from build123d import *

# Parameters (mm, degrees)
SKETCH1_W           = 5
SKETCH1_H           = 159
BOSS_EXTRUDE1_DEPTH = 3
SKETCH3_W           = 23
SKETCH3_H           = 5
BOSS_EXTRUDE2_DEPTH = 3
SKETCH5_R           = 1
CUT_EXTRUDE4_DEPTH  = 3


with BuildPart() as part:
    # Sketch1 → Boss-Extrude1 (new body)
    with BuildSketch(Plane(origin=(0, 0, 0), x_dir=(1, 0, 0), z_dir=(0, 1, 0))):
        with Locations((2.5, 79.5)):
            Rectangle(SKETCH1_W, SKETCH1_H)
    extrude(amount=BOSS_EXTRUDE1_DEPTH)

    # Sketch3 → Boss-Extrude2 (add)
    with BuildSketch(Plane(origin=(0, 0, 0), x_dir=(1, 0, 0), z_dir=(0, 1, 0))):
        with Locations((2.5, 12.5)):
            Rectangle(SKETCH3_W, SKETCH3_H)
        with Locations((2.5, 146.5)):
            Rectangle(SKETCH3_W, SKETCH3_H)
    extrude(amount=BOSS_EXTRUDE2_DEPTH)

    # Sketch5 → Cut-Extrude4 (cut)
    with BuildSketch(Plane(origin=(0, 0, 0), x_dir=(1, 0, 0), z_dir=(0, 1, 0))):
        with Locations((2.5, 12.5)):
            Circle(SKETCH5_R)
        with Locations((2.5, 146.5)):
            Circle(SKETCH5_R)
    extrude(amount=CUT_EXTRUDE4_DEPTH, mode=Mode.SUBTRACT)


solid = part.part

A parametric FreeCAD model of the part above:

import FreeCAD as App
import Part
import Sketcher


def add_polygon(sketch, points):
    """Adds a closed chain of lines whose ends are joined by coincident constraints."""
    first, n = sketch.GeometryCount, len(points)
    for a, b in zip(points, points[1:] + points[:1]):
        sketch.addGeometry(Part.LineSegment(App.Vector(*a, 0), App.Vector(*b, 0)), False)
    for i in range(n):
        sketch.addConstraint(Sketcher.Constraint("Coincident", first + i, 2, first + (i + 1) % n, 1))

doc = App.newDocument("Part")
body = doc.addObject("PartDesign::Body", "Body")

sketch1 = body.newObject("Sketcher::SketchObject", "Sketch")
sketch1.AttachmentSupport = (doc.getObject("XZ_Plane"), [""])
sketch1.MapMode = "FlatFace"
add_polygon(sketch1, [(0, -159), (0, 0), (5, 0), (5, -159)])
sketch1.addConstraint(Sketcher.Constraint("Vertical", 0))
sketch1.addConstraint(Sketcher.Constraint("Horizontal", 1))
sketch1.addConstraint(Sketcher.Constraint("Vertical", 2))
sketch1.addConstraint(Sketcher.Constraint("Horizontal", 3))
sketch1.addConstraint(Sketcher.Constraint("Coincident", 0, 2, -1, 1))
sketch1.addConstraint(Sketcher.Constraint("DistanceX", 1, 1, 1, 2, 5.0))
sketch1.addConstraint(Sketcher.Constraint("DistanceY", 0, 1, 0, 2, 159.0))
pad1 = body.newObject("PartDesign::Pad", "Pad")
pad1.Profile = sketch1
pad1.Length = 3
pad1.Reversed = True

sketch2 = body.newObject("Sketcher::SketchObject", "Sketch001")
sketch2.AttachmentSupport = (doc.getObject("XZ_Plane"), [""])
sketch2.MapMode = "FlatFace"
add_polygon(sketch2, [(-9, -15), (-9, -10), (14, -10), (14, -15)])
add_polygon(sketch2, [(-9, -149), (-9, -144), (14, -144), (14, -149)])
sketch2.addConstraint(Sketcher.Constraint("Vertical", 0))
sketch2.addConstraint(Sketcher.Constraint("Horizontal", 1))
sketch2.addConstraint(Sketcher.Constraint("Vertical", 2))
sketch2.addConstraint(Sketcher.Constraint("Horizontal", 3))
sketch2.addConstraint(Sketcher.Constraint("Vertical", 4))
sketch2.addConstraint(Sketcher.Constraint("Horizontal", 5))
sketch2.addConstraint(Sketcher.Constraint("Vertical", 6))
sketch2.addConstraint(Sketcher.Constraint("Horizontal", 7))
sketch2.addConstraint(Sketcher.Constraint("Vertical", 3, 2, 4, 2))
sketch2.addConstraint(Sketcher.Constraint("Vertical", 2, 2, 5, 2))
sketch2.addConstraint(Sketcher.Constraint("Equal", 2, 4))
sketch2.addConstraint(Sketcher.Constraint("DistanceX", 1, 1, 1, 2, 23.0))
sketch2.addConstraint(Sketcher.Constraint("DistanceY", 0, 1, 0, 2, 5.0))
sketch2.addConstraint(Sketcher.Constraint("DistanceX", 0, 2, -1, 1, 9.0))
sketch2.addConstraint(Sketcher.Constraint("DistanceY", 0, 2, -1, 1, 10.0))
sketch2.addConstraint(Sketcher.Constraint("DistanceY", 4, 2, -1, 1, 144.0))
pad2 = body.newObject("PartDesign::Pad", "Pad001")
pad2.Profile = sketch2
pad2.Length = 3
pad2.Reversed = True

sketch3 = body.newObject("Sketcher::SketchObject", "Sketch002")
sketch3.AttachmentSupport = (doc.getObject("XZ_Plane"), [""])
sketch3.MapMode = "FlatFace"
sketch3.addGeometry(Part.Circle(App.Vector(2.5, -12.5, 0), App.Vector(0, 0, 1), 1), False)
sketch3.addGeometry(Part.Circle(App.Vector(2.5, -146.5, 0), App.Vector(0, 0, 1), 1), False)
sketch3.addConstraint(Sketcher.Constraint("Equal", 0, 1))
sketch3.addConstraint(Sketcher.Constraint("Vertical", 0, 3, 1, 3))
sketch3.addConstraint(Sketcher.Constraint("Diameter", 0, 2.0))
sketch3.addConstraint(Sketcher.Constraint("DistanceY", 1, 3, 0, 3, 134.0))
sketch3.addConstraint(Sketcher.Constraint("DistanceX", -1, 1, 0, 3, 2.5))
sketch3.addConstraint(Sketcher.Constraint("DistanceY", 0, 3, -1, 1, 12.5))
pocket1 = body.newObject("PartDesign::Pocket", "Pocket")
pocket1.Profile = sketch3
pocket1.Length = 3

doc.recompute()
